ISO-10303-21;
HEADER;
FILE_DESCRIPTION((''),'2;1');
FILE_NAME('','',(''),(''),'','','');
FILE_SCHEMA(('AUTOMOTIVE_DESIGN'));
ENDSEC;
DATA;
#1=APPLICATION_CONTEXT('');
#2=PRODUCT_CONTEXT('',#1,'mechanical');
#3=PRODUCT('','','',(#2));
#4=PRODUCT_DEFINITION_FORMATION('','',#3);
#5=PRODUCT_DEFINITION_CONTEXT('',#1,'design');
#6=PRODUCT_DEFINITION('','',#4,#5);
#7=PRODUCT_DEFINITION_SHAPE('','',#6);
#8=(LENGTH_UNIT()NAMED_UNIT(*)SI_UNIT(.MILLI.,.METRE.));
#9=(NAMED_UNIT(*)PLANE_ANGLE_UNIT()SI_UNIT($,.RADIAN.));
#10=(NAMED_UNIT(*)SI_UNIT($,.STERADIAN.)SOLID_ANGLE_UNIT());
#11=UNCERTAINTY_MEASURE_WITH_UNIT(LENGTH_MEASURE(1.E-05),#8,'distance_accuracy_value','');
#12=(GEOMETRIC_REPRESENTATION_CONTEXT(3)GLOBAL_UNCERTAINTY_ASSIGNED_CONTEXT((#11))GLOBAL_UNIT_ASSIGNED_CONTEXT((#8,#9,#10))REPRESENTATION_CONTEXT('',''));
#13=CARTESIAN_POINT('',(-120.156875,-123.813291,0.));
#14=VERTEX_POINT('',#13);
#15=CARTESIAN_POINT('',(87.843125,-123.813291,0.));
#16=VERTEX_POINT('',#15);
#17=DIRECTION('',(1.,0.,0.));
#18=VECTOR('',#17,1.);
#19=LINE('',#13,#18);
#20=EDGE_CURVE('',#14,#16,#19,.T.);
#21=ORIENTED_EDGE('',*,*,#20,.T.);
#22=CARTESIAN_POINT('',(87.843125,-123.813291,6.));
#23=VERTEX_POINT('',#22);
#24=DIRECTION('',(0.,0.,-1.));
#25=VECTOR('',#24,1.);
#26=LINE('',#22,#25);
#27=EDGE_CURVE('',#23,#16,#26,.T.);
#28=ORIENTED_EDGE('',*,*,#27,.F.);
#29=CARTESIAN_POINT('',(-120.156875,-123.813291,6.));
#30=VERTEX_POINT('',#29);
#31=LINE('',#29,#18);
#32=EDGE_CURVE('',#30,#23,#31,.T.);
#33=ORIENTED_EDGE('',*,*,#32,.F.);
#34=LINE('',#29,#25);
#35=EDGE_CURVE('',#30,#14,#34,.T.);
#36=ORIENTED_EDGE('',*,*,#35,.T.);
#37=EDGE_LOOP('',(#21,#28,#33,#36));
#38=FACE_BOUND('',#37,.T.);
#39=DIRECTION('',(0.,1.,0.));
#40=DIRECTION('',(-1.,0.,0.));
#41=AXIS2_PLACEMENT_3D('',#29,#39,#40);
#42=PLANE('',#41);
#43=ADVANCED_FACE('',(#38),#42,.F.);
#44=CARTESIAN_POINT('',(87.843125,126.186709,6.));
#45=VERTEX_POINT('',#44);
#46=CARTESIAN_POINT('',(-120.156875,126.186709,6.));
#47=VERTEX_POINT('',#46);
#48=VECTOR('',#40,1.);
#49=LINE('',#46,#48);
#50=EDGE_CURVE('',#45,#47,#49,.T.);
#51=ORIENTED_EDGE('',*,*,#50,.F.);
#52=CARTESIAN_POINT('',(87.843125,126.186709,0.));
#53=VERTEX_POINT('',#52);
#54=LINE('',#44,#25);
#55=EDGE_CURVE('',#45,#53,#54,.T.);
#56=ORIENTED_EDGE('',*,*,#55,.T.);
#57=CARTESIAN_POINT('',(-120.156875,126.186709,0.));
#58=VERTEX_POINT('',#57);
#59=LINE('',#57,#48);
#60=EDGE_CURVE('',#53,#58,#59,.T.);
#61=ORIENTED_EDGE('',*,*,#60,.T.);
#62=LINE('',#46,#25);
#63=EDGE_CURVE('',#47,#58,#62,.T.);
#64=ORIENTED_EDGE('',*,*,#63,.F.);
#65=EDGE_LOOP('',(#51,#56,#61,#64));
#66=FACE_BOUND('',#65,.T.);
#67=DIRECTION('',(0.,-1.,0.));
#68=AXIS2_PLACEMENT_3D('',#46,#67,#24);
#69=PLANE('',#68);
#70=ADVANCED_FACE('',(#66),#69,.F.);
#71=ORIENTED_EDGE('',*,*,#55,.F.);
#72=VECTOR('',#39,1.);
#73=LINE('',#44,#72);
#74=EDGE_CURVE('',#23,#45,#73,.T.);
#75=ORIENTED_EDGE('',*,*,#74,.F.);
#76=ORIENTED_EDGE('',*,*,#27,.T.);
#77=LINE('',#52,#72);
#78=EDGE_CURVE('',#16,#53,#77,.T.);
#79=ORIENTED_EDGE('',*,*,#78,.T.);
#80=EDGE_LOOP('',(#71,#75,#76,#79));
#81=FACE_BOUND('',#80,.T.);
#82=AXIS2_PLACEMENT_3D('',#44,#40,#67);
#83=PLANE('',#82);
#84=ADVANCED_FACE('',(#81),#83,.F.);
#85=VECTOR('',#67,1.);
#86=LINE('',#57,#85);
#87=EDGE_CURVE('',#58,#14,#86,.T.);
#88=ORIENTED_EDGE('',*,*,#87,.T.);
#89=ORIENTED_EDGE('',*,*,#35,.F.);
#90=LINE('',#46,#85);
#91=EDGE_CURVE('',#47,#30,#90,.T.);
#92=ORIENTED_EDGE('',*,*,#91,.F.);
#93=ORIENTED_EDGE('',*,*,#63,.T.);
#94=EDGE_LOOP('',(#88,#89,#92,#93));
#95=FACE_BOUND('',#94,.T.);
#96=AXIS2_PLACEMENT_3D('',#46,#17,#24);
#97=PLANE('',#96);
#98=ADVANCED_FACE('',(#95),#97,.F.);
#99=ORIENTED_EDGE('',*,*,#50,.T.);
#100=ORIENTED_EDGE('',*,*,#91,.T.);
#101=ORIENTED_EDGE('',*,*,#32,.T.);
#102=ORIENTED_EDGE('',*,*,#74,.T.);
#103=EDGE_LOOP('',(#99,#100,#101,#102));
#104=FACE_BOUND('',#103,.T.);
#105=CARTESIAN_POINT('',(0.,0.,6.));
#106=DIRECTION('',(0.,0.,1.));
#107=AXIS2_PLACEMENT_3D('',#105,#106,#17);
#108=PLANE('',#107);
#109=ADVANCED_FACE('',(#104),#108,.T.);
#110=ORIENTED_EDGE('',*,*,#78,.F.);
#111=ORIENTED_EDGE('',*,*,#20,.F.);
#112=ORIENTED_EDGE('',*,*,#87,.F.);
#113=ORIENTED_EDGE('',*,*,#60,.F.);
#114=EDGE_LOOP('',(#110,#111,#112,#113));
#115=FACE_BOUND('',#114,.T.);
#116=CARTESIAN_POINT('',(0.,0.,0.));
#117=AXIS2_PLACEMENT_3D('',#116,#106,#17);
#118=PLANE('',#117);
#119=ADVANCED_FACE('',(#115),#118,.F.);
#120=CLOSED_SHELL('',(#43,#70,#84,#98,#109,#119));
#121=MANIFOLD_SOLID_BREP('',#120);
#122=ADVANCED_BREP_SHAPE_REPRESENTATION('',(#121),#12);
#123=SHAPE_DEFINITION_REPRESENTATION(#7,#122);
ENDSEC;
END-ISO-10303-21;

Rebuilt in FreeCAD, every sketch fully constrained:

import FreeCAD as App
import Part
import Sketcher

V = App.Vector

doc = App.newDocument("Part")
body = doc.addObject("PartDesign::Body", "Body")

sketch1 = body.newObject("Sketcher::SketchObject", "Sketch")
sketch1.AttachmentSupport = (doc.getObject("XY_Plane"), [""])
sketch1.MapMode = "FlatFace"
sketch1.addGeometry([
    Part.LineSegment(V(-120, 126, 0), V(-120, -124, 0)),
    Part.LineSegment(V(-120, -124, 0), V(88, -124, 0)),
    Part.LineSegment(V(88, -124, 0), V(88, 126, 0)),
    Part.LineSegment(V(88, 126, 0), V(-120, 126, 0)),
], False)
sketch1.addConstraint([
    Sketcher.Constraint("Coincident", 0, 2, 1, 1),
    Sketcher.Constraint("Coincident", 1, 2, 2, 1),
    Sketcher.Constraint("Coincident", 2, 2, 3, 1),
    Sketcher.Constraint("Coincident", 3, 2, 0, 1),
    Sketcher.Constraint("Vertical", 0),
    Sketcher.Constraint("Horizontal", 1),
    Sketcher.Constraint("Vertical", 2),
    Sketcher.Constraint("Horizontal", 3),
    Sketcher.Constraint("DistanceX", 1, 1, 1, 2, 208.0),
    Sketcher.Constraint("DistanceY", 0, 2, 0, 1, 250.0),
    Sketcher.Constraint("DistanceY", 0, 2, -1, 1, 123.813291),
    Sketcher.Constraint("DistanceX", 0, 2, -1, 1, 120.156875),
])
pad1 = body.newObject("PartDesign::Pad", "Pad")
pad1.Profile = sketch1
pad1.Length = 6

doc.recompute()
